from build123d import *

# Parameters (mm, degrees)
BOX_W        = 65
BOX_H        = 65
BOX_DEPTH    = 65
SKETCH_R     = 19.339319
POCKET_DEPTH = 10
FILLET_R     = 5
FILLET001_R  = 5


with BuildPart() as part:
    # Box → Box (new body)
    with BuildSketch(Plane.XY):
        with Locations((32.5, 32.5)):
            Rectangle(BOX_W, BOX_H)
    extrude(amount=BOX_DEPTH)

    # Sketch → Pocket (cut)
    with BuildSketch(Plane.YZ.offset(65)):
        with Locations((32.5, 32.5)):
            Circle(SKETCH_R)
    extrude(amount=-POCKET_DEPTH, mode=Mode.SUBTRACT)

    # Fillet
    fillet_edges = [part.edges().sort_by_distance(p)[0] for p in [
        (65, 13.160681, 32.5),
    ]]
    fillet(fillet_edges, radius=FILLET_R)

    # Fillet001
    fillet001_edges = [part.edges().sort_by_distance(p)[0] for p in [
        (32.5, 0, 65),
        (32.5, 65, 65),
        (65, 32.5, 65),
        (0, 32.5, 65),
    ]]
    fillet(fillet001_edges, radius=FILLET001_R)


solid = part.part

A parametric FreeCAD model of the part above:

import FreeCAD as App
import Part
import Sketcher

V = App.Vector
Q = App.Units.Quantity


def edges_at(feature, points):
    """Names of the edges that pass closest to the given points."""
    edges = feature.Shape.Edges
    near = lambda p: min(range(len(edges)), key=lambda i: edges[i].distToShape(Part.Vertex(*p))[0])
    return sorted({f"Edge{near(p) + 1}" for p in points})


def add_polygon(sketch, points):
    """Adds a closed chain of lines whose ends are joined by coincident constraints."""
    first, n = sketch.GeometryCount, len(points)
    for a, b in zip(points, points[1:] + points[:1]):
        sketch.addGeometry(Part.LineSegment(App.Vector(*a, 0), App.Vector(*b, 0)), False)
    for i in range(n):
        sketch.addConstraint(Sketcher.Constraint("Coincident", first + i, 2, first + (i + 1) % n, 1))

doc = App.newDocument("Part")
params = doc.addObject("Spreadsheet::Sheet", "Params")
for row, (alias, value) in enumerate([
    ("sketch1_width", "65 mm"),
    ("pad1_length", "65 mm"),
    ("pocket1_length", "10 mm"),
    ("fillet_radius", "5 mm"),
    ("fillet2_radius", "5 mm"),
], start=1):
    params.set(f"A{row}", alias)
    params.set(f"B{row}", "=" + value)
    params.setAlias(f"B{row}", alias)

body = doc.addObject("PartDesign::Body", "Body")

sketch1 = body.newObject("Sketcher::SketchObject", "Sketch")
sketch1.AttachmentSupport = (doc.getObject("XY_Plane"), [""])
sketch1.MapMode = "FlatFace"
add_polygon(sketch1, [(0, 65), (0, 0), (65, 0), (65, 65)])
sketch1.addConstraint([
    Sketcher.Constraint("Vertical", 0),
    Sketcher.Constraint("Horizontal", 1),
    Sketcher.Constraint("Vertical", 2),
    Sketcher.Constraint("Horizontal", 3),
    Sketcher.Constraint("Coincident", 0, 2, -1, 1),
    Sketcher.Constraint("Equal", 3, 0),
    Sketcher.Constraint("DistanceX", 1, 1, 1, 2, Q("65 mm")),
])
sketch1.setExpression("Constraints[10]", "Params.sketch1_width")
pad1 = body.newObject("PartDesign::Pad", "Pad")
pad1.Profile = sketch1
pad1.setExpression("Length", "Params.pad1_length")

sketch2 = body.newObject("Sketcher::SketchObject", "Sketch001")
sketch2.AttachmentSupport = (doc.getObject("YZ_Plane"), [""])
sketch2.MapMode = "FlatFace"
sketch2.AttachmentOffset = App.Placement(V(0, 0, 65), App.Rotation())
sketch2.addGeometry(Part.Circle(V(32, 32, 0), V(0, 0, 1), 19), False)
sketch2.addConstraint([
    Sketcher.Constraint("DistanceX", -1, 1, 0, 3, Q("32.5 mm")),
    Sketcher.Constraint("DistanceY", -1, 1, 0, 3, Q("32.5 mm")),
    Sketcher.Constraint("Diameter", 0, Q("38.678638 mm")),
])
pocket1 = body.newObject("PartDesign::Pocket", "Pocket")
pocket1.Profile = sketch2
pocket1.setExpression("Length", "Params.pocket1_length")
doc.recompute()

fillet = body.newObject("PartDesign::Fillet", "Fillet")
fillet.Base = (pocket1, edges_at(pocket1, [(65, 13.161, 32.5)]))
fillet.setExpression("Radius", "Params.fillet_radius")
doc.recompute()

fillet2 = body.newObject("PartDesign::Fillet", "Fillet001")
fillet2.Base = (fillet, edges_at(fillet, [
    (32.5, 0, 65),
    (32.5, 65, 65),
    (65, 32.5, 65),
    (0, 32.5, 65),
]))
fillet2.setExpression("Radius", "Params.fillet2_radius")

doc.recompute()
